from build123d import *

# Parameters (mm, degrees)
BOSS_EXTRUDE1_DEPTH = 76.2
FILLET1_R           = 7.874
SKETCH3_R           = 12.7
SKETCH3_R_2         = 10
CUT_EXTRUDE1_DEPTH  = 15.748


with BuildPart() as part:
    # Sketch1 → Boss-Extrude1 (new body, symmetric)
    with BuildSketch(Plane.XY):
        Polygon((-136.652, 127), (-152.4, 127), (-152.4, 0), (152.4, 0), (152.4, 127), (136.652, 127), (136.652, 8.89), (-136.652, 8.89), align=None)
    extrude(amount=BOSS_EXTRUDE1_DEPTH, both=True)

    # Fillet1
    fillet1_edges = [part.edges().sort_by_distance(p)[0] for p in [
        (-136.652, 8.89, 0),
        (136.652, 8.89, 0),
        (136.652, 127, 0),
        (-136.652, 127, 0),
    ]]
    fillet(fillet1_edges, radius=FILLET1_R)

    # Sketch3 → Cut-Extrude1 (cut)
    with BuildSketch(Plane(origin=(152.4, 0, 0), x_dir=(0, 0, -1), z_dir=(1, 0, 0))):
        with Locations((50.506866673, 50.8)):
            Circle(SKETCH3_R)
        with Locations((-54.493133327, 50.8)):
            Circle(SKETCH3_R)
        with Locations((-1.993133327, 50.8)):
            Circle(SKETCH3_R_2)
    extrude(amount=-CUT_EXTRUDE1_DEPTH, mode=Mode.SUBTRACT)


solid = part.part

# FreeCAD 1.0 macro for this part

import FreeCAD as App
import Part
import Sketcher

V = App.Vector
Q = App.Units.Quantity


def edges_at(feature, points):
    """Names of the edges that pass closest to the given points."""
    edges = feature.Shape.Edges
    near = lambda p: min(range(len(edges)), key=lambda i: edges[i].distToShape(Part.Vertex(*p))[0])
    return sorted({f"Edge{near(p) + 1}" for p in points})

doc = App.newDocument("Part")
body = doc.addObject("PartDesign::Body", "Body")

sketch1 = body.newObject("Sketcher::SketchObject", "Sketch")
sketch1.AttachmentSupport = (doc.getObject("XY_Plane"), [""])
sketch1.MapMode = "FlatFace"
sketch1.addGeometry([
    Part.LineSegment(V(-136.652, 127, 0), V(-152.4, 127, 0)),
    Part.LineSegment(V(-152.4, 127, 0), V(-152.4, 0, 0)),
    Part.LineSegment(V(-152.4, 0, 0), V(152.4, 0, 0)),
    Part.LineSegment(V(152.4, 0, 0), V(152.4, 127, 0)),
    Part.LineSegment(V(152.4, 127, 0), V(136.652, 127, 0)),
    Part.LineSegment(V(136.652, 127, 0), V(136.652, 8.89, 0)),
    Part.LineSegment(V(136.652, 8.89, 0), V(-136.652, 8.89, 0)),
    Part.LineSegment(V(-136.652, 8.89, 0), V(-136.652, 127, 0)),
], False)
sketch1.addConstraint([
    Sketcher.Constraint("Coincident", 0, 2, 1, 1),
    Sketcher.Constraint("Coincident", 1, 2, 2, 1),
    Sketcher.Constraint("Coincident", 2, 2, 3, 1),
    Sketcher.Constraint("Coincident", 3, 2, 4, 1),
    Sketcher.Constraint("Coincident", 4, 2, 5, 1),
    Sketcher.Constraint("Coincident", 5, 2, 6, 1),
    Sketcher.Constraint("Coincident", 6, 2, 7, 1),
    Sketcher.Constraint("Coincident", 7, 2, 0, 1),
    Sketcher.Constraint("Horizontal", 0),
    Sketcher.Constraint("Vertical", 1),
    Sketcher.Constraint("Horizontal", 2),
    Sketcher.Constraint("Vertical", 3),
    Sketcher.Constraint("Horizontal", 4),
    Sketcher.Constraint("Vertical", 5),
    Sketcher.Constraint("Horizontal", 6),
    Sketcher.Constraint("Vertical", 7),
    Sketcher.Constraint("Symmetric", 1, 2, 2, 2, -1, 1),
    Sketcher.Constraint("Symmetric", 4, 2, 7, 2, -2),
    Sketcher.Constraint("DistanceX", 2, 1, 2, 2, Q("12 in")),
    Sketcher.Constraint("DistanceY", 1, 2, 1, 1, Q("5 in")),
    Sketcher.Constraint("DistanceX", 0, 2, 0, 1, Q("0.62 in")),
    Sketcher.Constraint("DistanceY", 5, 2, 5, 1, Q("4.65 in")),
])
pad1 = body.newObject("PartDesign::Pad", "Pad")
pad1.Profile = sketch1
pad1.Length = Q("6 in")
pad1.Midplane = True
doc.recompute()

fillet = body.newObject("PartDesign::Fillet", "Fillet")
fillet.Base = (pad1, edges_at(pad1, [
    (-136.652, 8.89, 0),
    (136.652, 8.89, 0),
    (136.652, 127, 0),
    (-136.652, 127, 0),
]))
fillet.Radius = Q("0.31 in")

sketch2 = body.newObject("Sketcher::SketchObject", "Sketch001")
sketch2.AttachmentSupport = (doc.getObject("YZ_Plane"), [""])
sketch2.MapMode = "FlatFace"
sketch2.AttachmentOffset = App.Placement(V(0, 0, 6 * 25.4), App.Rotation())
sketch2.addGeometry([
    Part.Circle(V(50.8, -50.506867, 0), V(0, 0, 1), 12.7),
    Part.Circle(V(50.8, 54.493133, 0), V(0, 0, 1), 12.7),
    Part.Circle(V(50.8, 1.993133, 0), V(0, 0, 1), 10),
], False)
sketch2.addConstraint([
    Sketcher.Constraint("Equal", 0, 1),
    Sketcher.Constraint("Vertical", 0, 3, 1, 3),
    Sketcher.Constraint("Vertical", 1, 3, 2, 3),
    Sketcher.Constraint("Diameter", 0, Q("1 in")),
    Sketcher.Constraint("DistanceX", -1, 1, 0, 3, Q("2 in")),
    Sketcher.Constraint("Diameter", 2, 20.0),
    Sketcher.Constraint("DistanceY", 0, 3, 1, 3, 105.0),
    Sketcher.Constraint("DistanceY", 0, 3, 2, 3, 52.5),
    Sketcher.Constraint("DistanceY", 0, 3, -1, 1, 50.506867),
])
pocket1 = body.newObject("PartDesign::Pocket", "Pocket")
pocket1.Profile = sketch2
pocket1.Length = Q("0.62 in")

doc.recompute()
